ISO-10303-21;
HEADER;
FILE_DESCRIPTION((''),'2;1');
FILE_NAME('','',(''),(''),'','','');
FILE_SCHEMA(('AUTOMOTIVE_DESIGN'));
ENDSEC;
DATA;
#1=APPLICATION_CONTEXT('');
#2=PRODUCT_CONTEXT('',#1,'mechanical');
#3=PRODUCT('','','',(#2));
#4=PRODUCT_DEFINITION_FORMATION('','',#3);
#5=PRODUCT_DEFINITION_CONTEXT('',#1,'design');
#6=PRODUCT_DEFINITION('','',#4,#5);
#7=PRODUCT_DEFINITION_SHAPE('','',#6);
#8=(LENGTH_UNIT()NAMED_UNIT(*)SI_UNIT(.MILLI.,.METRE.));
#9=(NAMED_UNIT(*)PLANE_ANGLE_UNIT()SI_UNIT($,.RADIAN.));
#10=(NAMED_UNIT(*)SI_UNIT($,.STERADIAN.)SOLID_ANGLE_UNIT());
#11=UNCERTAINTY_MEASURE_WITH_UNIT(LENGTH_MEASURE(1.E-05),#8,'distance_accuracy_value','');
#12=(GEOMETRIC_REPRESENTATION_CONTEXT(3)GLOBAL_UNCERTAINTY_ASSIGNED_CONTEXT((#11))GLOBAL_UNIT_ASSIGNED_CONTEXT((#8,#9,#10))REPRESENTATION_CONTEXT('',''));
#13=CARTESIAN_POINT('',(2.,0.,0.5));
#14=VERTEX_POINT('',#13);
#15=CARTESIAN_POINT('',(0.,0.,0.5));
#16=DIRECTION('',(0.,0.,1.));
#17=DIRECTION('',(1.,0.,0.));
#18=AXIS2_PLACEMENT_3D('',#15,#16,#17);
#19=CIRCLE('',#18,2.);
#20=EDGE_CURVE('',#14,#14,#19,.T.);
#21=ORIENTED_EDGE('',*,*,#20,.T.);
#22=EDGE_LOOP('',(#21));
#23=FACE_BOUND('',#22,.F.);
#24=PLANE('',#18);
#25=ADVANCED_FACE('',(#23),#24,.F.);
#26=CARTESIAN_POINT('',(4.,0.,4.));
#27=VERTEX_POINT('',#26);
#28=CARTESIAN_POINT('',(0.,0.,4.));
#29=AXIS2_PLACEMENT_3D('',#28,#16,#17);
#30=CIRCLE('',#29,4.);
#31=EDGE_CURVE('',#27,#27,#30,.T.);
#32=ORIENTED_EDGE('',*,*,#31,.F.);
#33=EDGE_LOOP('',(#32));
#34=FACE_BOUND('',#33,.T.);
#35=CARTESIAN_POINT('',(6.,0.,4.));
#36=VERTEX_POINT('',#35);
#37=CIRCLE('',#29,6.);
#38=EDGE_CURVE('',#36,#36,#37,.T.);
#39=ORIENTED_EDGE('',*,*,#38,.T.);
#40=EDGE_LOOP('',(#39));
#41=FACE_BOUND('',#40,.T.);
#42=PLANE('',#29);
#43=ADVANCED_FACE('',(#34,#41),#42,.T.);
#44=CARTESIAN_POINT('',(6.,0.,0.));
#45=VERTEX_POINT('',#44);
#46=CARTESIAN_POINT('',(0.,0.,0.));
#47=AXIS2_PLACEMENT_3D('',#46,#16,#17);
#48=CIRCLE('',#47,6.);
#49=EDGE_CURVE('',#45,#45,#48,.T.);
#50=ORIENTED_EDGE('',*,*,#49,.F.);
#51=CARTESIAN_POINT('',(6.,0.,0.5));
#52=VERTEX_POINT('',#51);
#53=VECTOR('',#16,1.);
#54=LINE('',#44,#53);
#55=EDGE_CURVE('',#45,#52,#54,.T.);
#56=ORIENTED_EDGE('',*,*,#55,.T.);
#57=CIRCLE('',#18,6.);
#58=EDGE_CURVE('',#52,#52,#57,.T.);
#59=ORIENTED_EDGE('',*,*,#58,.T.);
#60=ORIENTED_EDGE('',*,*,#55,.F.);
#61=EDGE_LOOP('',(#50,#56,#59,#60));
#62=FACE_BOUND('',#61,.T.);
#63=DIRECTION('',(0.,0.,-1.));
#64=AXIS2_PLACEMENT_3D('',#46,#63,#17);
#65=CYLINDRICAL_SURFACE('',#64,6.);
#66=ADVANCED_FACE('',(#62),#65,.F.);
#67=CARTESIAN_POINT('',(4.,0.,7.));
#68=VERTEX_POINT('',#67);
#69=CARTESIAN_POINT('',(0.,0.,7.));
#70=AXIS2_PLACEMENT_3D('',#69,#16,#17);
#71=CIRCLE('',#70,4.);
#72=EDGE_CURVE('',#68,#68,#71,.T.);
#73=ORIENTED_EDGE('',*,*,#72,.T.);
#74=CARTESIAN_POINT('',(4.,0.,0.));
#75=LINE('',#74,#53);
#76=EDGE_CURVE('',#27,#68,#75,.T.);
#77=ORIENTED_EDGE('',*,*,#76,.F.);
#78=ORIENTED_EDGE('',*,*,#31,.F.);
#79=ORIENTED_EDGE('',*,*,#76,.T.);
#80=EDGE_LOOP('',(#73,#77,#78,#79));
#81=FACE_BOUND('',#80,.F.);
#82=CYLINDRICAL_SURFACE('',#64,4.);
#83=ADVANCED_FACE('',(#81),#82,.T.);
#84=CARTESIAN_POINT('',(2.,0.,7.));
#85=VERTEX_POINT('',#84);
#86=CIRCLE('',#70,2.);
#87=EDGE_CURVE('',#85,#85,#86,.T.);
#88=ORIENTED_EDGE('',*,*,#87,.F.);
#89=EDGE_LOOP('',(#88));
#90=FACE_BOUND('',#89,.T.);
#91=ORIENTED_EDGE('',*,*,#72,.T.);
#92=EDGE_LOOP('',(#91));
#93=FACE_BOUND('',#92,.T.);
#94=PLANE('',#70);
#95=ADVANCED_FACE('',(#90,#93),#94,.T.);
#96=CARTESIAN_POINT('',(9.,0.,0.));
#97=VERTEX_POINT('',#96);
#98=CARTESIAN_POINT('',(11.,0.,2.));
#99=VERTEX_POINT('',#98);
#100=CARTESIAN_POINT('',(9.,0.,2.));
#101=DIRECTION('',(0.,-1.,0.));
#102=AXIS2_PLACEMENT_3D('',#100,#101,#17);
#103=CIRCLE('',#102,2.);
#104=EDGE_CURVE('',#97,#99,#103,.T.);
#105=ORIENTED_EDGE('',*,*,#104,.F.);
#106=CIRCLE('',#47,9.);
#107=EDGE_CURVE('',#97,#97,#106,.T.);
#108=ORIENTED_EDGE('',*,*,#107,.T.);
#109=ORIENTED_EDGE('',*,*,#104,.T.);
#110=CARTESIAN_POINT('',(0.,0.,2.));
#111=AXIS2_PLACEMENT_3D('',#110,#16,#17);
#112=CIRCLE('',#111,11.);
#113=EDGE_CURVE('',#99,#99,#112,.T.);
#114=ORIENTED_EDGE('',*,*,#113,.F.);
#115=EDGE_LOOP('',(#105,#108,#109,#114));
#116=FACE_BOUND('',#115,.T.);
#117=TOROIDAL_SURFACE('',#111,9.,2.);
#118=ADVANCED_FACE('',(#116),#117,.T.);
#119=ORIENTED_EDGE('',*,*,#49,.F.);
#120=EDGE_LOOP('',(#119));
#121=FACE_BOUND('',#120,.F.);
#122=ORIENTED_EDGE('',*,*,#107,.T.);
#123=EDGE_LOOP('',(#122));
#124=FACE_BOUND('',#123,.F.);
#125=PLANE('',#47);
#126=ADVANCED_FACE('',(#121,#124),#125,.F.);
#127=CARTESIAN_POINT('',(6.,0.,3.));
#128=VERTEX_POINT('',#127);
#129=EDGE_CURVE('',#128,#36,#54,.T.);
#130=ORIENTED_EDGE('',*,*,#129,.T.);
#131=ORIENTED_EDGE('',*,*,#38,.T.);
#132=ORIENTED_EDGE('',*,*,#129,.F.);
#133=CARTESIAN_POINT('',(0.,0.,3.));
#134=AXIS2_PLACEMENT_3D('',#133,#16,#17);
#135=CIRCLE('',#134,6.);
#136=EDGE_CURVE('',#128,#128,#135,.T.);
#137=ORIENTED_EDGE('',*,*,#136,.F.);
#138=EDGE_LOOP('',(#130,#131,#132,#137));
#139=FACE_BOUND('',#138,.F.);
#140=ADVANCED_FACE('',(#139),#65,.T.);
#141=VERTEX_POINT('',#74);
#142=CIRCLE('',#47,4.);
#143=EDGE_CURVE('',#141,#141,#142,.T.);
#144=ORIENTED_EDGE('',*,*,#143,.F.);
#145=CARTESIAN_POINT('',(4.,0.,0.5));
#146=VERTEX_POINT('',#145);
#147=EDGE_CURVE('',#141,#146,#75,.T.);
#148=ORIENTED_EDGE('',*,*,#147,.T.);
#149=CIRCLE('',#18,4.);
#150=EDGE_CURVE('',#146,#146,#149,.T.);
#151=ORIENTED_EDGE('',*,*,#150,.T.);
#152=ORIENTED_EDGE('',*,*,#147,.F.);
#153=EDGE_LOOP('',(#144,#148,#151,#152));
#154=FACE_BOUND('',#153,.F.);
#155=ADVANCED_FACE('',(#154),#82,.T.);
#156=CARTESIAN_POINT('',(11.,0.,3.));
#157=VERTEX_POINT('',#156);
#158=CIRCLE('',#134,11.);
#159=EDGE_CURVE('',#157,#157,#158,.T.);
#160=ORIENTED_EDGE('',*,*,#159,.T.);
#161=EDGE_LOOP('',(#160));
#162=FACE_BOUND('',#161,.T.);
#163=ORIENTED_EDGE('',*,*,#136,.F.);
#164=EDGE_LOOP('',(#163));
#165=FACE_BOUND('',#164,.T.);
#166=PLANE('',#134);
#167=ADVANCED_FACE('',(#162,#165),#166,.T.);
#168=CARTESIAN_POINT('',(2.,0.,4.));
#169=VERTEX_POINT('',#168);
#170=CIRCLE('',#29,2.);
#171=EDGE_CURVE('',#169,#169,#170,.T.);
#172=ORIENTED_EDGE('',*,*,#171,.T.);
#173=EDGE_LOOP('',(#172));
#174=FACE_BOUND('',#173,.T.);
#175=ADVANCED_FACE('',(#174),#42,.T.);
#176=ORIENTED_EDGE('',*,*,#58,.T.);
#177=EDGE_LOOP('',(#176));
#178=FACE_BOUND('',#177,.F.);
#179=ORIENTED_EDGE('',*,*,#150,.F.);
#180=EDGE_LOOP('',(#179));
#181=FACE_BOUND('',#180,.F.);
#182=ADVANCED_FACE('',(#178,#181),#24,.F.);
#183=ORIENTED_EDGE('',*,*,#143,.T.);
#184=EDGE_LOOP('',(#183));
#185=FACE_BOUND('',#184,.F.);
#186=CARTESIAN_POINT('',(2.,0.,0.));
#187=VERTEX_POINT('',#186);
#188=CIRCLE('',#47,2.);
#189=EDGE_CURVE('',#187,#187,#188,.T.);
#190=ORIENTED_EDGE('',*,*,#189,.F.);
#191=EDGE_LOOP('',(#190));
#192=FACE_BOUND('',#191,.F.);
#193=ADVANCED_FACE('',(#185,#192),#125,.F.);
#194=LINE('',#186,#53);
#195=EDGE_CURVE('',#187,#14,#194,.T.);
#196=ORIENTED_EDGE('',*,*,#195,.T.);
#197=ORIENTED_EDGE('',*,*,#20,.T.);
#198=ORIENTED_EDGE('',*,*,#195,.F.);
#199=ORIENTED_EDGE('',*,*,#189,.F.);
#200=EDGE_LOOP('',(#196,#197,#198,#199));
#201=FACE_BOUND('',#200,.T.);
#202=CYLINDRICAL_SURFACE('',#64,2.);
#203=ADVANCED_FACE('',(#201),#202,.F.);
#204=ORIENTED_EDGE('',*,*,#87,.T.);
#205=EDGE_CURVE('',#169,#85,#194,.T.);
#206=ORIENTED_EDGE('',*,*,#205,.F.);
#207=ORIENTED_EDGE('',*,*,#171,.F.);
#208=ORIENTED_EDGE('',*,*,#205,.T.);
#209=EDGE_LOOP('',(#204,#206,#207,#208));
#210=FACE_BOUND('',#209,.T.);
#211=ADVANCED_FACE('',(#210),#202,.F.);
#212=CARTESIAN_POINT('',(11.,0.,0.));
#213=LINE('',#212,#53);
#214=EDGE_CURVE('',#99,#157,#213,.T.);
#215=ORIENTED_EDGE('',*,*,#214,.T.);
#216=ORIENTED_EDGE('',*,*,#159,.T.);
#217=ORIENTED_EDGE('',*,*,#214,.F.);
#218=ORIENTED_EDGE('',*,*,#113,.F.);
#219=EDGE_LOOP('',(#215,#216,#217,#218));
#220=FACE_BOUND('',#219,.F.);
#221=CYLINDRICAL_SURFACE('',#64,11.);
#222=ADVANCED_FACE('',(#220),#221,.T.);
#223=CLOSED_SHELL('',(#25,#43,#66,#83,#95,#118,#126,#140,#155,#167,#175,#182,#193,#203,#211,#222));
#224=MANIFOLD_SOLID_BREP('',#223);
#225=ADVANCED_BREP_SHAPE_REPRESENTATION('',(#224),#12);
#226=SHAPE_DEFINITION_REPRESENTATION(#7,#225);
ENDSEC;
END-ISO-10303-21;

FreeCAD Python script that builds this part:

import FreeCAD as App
import Part
import Sketcher

V = App.Vector
Q = App.Units.Quantity


def edges_at(feature, points):
    """Names of the edges that pass closest to the given points."""
    edges = feature.Shape.Edges
    near = lambda p: min(range(len(edges)), key=lambda i: edges[i].distToShape(Part.Vertex(*p))[0])
    return sorted({f"Edge{near(p) + 1}" for p in points})

doc = App.newDocument("Part")
body = doc.addObject("PartDesign::Body", "Body")

sketch1 = doc.addObject("Sketcher::SketchObject", "Sketch")
body.addObject(sketch1)
sketch1.AttachmentSupport = (doc.XY_Plane, [""])
sketch1.MapMode = "FlatFace"
sketch1.addGeometry([
    Part.Circle(V(0, 0, 0), V(0, 0, 1), 4),
    Part.Circle(V(0, 0, 0), V(0, 0, 1), 2),
], False)
sketch1.addConstraint([
    Sketcher.Constraint("Coincident", 0, 3, -1, 1),
    Sketcher.Constraint("Coincident", 1, 3, -1, 1),
    Sketcher.Constraint("Diameter", 0, Q("8 mm")),
    Sketcher.Constraint("Diameter", 1, Q("4 mm")),
])
pad1 = doc.addObject("PartDesign::Pad", "Pad")
body.addObject(pad1)
pad1.Profile = sketch1
pad1.Length = 7

sketch2 = doc.addObject("Sketcher::SketchObject", "Sketch001")
body.addObject(sketch2)
sketch2.AttachmentSupport = (doc.XY_Plane, [""])
sketch2.MapMode = "FlatFace"
sketch2.addGeometry([
    Part.Circle(V(0, 0, 0), V(0, 0, 1), 6),
    Part.Circle(V(0, 0, 0), V(0, 0, 1), 4),
], False)
sketch2.addConstraint([
    Sketcher.Constraint("Coincident", 0, 3, -1, 1),
    Sketcher.Constraint("Coincident", 1, 3, -1, 1),
    Sketcher.Constraint("Diameter", 0, Q("12 mm")),
    Sketcher.Constraint("Diameter", 1, Q("8 mm")),
])
pad2 = doc.addObject("PartDesign::Pad", "Pad001")
body.addObject(pad2)
pad2.Profile = sketch2
pad2.Length = 4

sketch3 = doc.addObject("Sketcher::SketchObject", "Sketch002")
body.addObject(sketch3)
sketch3.AttachmentSupport = (doc.XY_Plane, [""])
sketch3.MapMode = "FlatFace"
sketch3.addGeometry([
    Part.Circle(V(0, 0, 0), V(0, 0, 1), 11),
    Part.Circle(V(0, 0, 0), V(0, 0, 1), 6),
], False)
sketch3.addConstraint([
    Sketcher.Constraint("Coincident", 0, 3, -1, 1),
    Sketcher.Constraint("Coincident", 1, 3, -1, 1),
    Sketcher.Constraint("Diameter", 0, Q("22 mm")),
    Sketcher.Constraint("Diameter", 1, Q("12 mm")),
])
pad3 = doc.addObject("PartDesign::Pad", "Pad002")
body.addObject(pad3)
pad3.Profile = sketch3
pad3.Length = 3

sketch4 = doc.addObject("Sketcher::SketchObject", "Sketch003")
body.addObject(sketch4)
sketch4.AttachmentSupport = (doc.XY_Plane, [""])
sketch4.MapMode = "FlatFace"
sketch4.addGeometry(Part.Circle(V(0, 0, 0), V(0, 0, 1), 2), False)
sketch4.addConstraint([
    Sketcher.Constraint("Coincident", 0, 3, -1, 1),
    Sketcher.Constraint("Diameter", 0, Q("4 mm")),
])
pad4 = doc.addObject("PartDesign::Pad", "Pad003")
body.addObject(pad4)
pad4.Profile = sketch4
pad4.Length = 4
doc.recompute()

fillet = doc.addObject("PartDesign::Fillet", "Fillet")
body.addObject(fillet)
fillet.Base = (pad4, edges_at(pad4, [(-11, 0, 0)]))
fillet.Radius = 2

sketch5 = doc.addObject("Sketcher::SketchObject", "Sketch004")
body.addObject(sketch5)
sketch5.AttachmentSupport = (doc.XY_Plane, [""])
sketch5.MapMode = "FlatFace"
sketch5.addGeometry([
    Part.Circle(V(0, 0, 0), V(0, 0, 1), 6),
    Part.Circle(V(0, 0, 0), V(0, 0, 1), 4),
    Part.Circle(V(0, 0, 0), V(0, 0, 1), 2),
], False)
sketch5.addConstraint([
    Sketcher.Constraint("Coincident", 0, 3, -1, 1),
    Sketcher.Constraint("Coincident", 1, 3, -1, 1),
    Sketcher.Constraint("Coincident", 2, 3, -1, 1),
    Sketcher.Constraint("Diameter", 0, Q("12 mm")),
    Sketcher.Constraint("Diameter", 1, Q("8 mm")),
    Sketcher.Constraint("Diameter", 2, Q("4 mm")),
])
pocket1 = doc.addObject("PartDesign::Pocket", "Pocket")
body.addObject(pocket1)
pocket1.Profile = sketch5
pocket1.Length = 0.5
pocket1.Reversed = True

doc.recompute()
